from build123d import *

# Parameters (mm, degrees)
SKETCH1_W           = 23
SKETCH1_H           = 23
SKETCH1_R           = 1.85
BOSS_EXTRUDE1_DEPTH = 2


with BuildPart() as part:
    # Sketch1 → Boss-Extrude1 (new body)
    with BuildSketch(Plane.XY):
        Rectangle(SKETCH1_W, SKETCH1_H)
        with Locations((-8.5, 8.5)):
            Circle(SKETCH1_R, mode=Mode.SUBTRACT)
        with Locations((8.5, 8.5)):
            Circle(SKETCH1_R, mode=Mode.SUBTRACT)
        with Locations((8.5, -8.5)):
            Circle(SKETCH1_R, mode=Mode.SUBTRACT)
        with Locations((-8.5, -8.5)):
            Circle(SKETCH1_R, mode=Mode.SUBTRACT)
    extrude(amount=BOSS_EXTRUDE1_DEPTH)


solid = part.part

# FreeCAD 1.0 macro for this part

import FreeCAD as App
import Part
import Sketcher

V = App.Vector


def add_polygon(sketch, points):
    """Adds a closed chain of lines whose ends are joined by coincident constraints."""
    first, n = sketch.GeometryCount, len(points)
    for a, b in zip(points, points[1:] + points[:1]):
        sketch.addGeometry(Part.LineSegment(App.Vector(*a, 0), App.Vector(*b, 0)), False)
    for i in range(n):
        sketch.addConstraint(Sketcher.Constraint("Coincident", first + i, 2, first + (i + 1) % n, 1))

doc = App.newDocument("Part")
body = doc.addObject("PartDesign::Body", "Body")

# Sketch on XY plane
sketch1 = body.newObject("Sketcher::SketchObject", "Sketch")
sketch1.AttachmentSupport = (doc.getObject("XY_Plane"), [""])
sketch1.MapMode = "FlatFace"
add_polygon(sketch1, [(-11.5, 11.5), (-11.5, -11.5), (11.5, -11.5), (11.5, 11.5)])  # lines 0-3
sketch1.addGeometry(Part.Circle(V(-8.5, -8.5, 0), V(0, 0, 1), 1.85), False)  # 4
sketch1.addGeometry(Part.Circle(V(8.5, -8.5, 0), V(0, 0, 1), 1.85), False)  # 5
sketch1.addGeometry(Part.Circle(V(-8.5, 8.5, 0), V(0, 0, 1), 1.85), False)  # 6
sketch1.addGeometry(Part.Circle(V(8.5, 8.5, 0), V(0, 0, 1), 1.85), False)  # 7
sketch1.addConstraint([
    Sketcher.Constraint("Vertical", 0),
    Sketcher.Constraint("Horizontal", 1),
    Sketcher.Constraint("Vertical", 2),
    Sketcher.Constraint("Horizontal", 3),
    Sketcher.Constraint("Equal", 4, 5),
    Sketcher.Constraint("Equal", 5, 6),
    Sketcher.Constraint("Equal", 6, 7),
    Sketcher.Constraint("Symmetric", 5, 3, 6, 3, -1, 1),
    Sketcher.Constraint("Symmetric", 4, 3, 7, 3, -1, 1),
    Sketcher.Constraint("Symmetric", 0, 2, 2, 2, -1, 1),
    Sketcher.Constraint("Symmetric", 4, 3, 5, 3, -2),
    Sketcher.Constraint("Equal", 3, 0),
    Sketcher.Constraint("Diameter", 4, 3.7),
    Sketcher.Constraint("DistanceX", 1, 1, 1, 2, 23.0),
    Sketcher.Constraint("DistanceX", 4, 3, 5, 3, 17.0),
    Sketcher.Constraint("DistanceY", 4, 3, 6, 3, 17.0),
])
pad1 = body.newObject("PartDesign::Pad", "Pad")
pad1.Profile = sketch1
pad1.Length = 2

doc.recompute()
